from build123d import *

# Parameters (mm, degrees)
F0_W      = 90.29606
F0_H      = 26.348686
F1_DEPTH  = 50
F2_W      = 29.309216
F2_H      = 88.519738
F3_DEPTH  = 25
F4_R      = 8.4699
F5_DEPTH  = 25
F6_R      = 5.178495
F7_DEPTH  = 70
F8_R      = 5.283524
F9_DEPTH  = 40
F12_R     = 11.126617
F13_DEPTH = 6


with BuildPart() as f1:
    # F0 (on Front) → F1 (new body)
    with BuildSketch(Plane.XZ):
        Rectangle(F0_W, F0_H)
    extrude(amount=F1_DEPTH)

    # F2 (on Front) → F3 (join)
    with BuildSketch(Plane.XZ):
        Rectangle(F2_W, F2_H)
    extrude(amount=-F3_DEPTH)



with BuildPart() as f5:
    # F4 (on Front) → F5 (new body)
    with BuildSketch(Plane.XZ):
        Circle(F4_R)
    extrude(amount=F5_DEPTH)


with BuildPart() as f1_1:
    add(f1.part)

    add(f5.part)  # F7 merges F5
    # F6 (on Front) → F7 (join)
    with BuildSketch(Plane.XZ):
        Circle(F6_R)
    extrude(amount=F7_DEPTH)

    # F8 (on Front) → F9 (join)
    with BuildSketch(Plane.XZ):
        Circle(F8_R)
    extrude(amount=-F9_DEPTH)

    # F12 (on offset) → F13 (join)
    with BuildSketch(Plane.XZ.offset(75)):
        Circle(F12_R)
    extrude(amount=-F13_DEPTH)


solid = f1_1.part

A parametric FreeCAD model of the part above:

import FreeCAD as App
import Part
import Sketcher

V = App.Vector


def add_polygon(sketch, points):
    """Adds a closed chain of lines whose ends are joined by coincident constraints."""
    first, n = sketch.GeometryCount, len(points)
    for a, b in zip(points, points[1:] + points[:1]):
        sketch.addGeometry(Part.LineSegment(App.Vector(*a, 0), App.Vector(*b, 0)), False)
    for i in range(n):
        sketch.addConstraint(Sketcher.Constraint("Coincident", first + i, 2, first + (i + 1) % n, 1))

doc = App.newDocument("Part")
body = doc.addObject("PartDesign::Body", "Body")

# Sketch on XZ plane
sketch1 = body.newObject("Sketcher::SketchObject", "Sketch")
sketch1.AttachmentSupport = (doc.getObject("XZ_Plane"), [""])
sketch1.MapMode = "FlatFace"
add_polygon(sketch1, [(-45.14803, 13.174343), (-45.14803, -13.174343), (45.14803, -13.174343), (45.14803, 13.174343)])  # lines 0-3
sketch1.addConstraint(Sketcher.Constraint("Vertical", 0))
sketch1.addConstraint(Sketcher.Constraint("Horizontal", 1))
sketch1.addConstraint(Sketcher.Constraint("Vertical", 2))
sketch1.addConstraint(Sketcher.Constraint("Horizontal", 3))
sketch1.addConstraint(Sketcher.Constraint("Symmetric", 0, 2, 2, 2, -1, 1))
sketch1.addConstraint(Sketcher.Constraint("DistanceX", 1, 1, 1, 2, 90.29606))
sketch1.addConstraint(Sketcher.Constraint("DistanceY", 0, 2, 0, 1, 26.348686))
pad1 = body.newObject("PartDesign::Pad", "Pad")
pad1.Profile = sketch1
pad1.Length = 50

# Sketch on XZ plane
sketch2 = body.newObject("Sketcher::SketchObject", "Sketch001")
sketch2.AttachmentSupport = (doc.getObject("XZ_Plane"), [""])
sketch2.MapMode = "FlatFace"
add_polygon(sketch2, [(-14.654608, 44.259869), (-14.654608, -44.259869), (14.654608, -44.259869), (14.654608, 44.259869)])  # lines 0-3
sketch2.addConstraint(Sketcher.Constraint("Vertical", 0))
sketch2.addConstraint(Sketcher.Constraint("Horizontal", 1))
sketch2.addConstraint(Sketcher.Constraint("Vertical", 2))
sketch2.addConstraint(Sketcher.Constraint("Horizontal", 3))
sketch2.addConstraint(Sketcher.Constraint("Symmetric", 0, 2, 2, 2, -1, 1))
sketch2.addConstraint(Sketcher.Constraint("DistanceY", 0, 2, 0, 1, 88.519738))
sketch2.addConstraint(Sketcher.Constraint("DistanceX", 1, 1, 1, 2, 29.309216))
pad2 = body.newObject("PartDesign::Pad", "Pad001")
pad2.Profile = sketch2
pad2.Length = 25
pad2.Reversed = True
body2 = doc.addObject("PartDesign::Body", "Body001")

# Sketch on XZ plane
sketch3 = body2.newObject("Sketcher::SketchObject", "Sketch002")
sketch3.AttachmentSupport = (doc.getObject("XZ_Plane001"), [""])
sketch3.MapMode = "FlatFace"
sketch3.addGeometry(Part.Circle(V(0, 0, 0), V(0, 0, 1), 8.4699), False)
sketch3.addConstraint(Sketcher.Constraint("Coincident", 0, 3, -1, 1))
sketch3.addConstraint(Sketcher.Constraint("Diameter", 0, 16.9398))
pad3 = body2.newObject("PartDesign::Pad", "Pad002")
pad3.Profile = sketch3
pad3.Length = 25
doc.recompute()

boolean = body.newObject("PartDesign::Boolean", "Boolean")
boolean.Type = "Fuse"
boolean.addObjects([body2])

# Sketch on XZ plane
sketch4 = body.newObject("Sketcher::SketchObject", "Sketch003")
sketch4.AttachmentSupport = (doc.getObject("XZ_Plane"), [""])
sketch4.MapMode = "FlatFace"
sketch4.addGeometry(Part.Circle(V(0, 0, 0), V(0, 0, 1), 5.178495), False)
sketch4.addConstraint(Sketcher.Constraint("Coincident", 0, 3, -1, 1))
sketch4.addConstraint(Sketcher.Constraint("Diameter", 0, 10.35699))
pad4 = body.newObject("PartDesign::Pad", "Pad003")
pad4.Profile = sketch4
pad4.Length = 70

# Sketch on XZ plane
sketch5 = body.newObject("Sketcher::SketchObject", "Sketch004")
sketch5.AttachmentSupport = (doc.getObject("XZ_Plane"), [""])
sketch5.MapMode = "FlatFace"
sketch5.addGeometry(Part.Circle(V(0, 0, 0), V(0, 0, 1), 5.283524), False)
sketch5.addConstraint(Sketcher.Constraint("Coincident", 0, 3, -1, 1))
sketch5.addConstraint(Sketcher.Constraint("Diameter", 0, 10.567048))
pad5 = body.newObject("PartDesign::Pad", "Pad004")
pad5.Profile = sketch5
pad5.Length = 40
pad5.Reversed = True

# Sketch on XZ plane
sketch6 = body.newObject("Sketcher::SketchObject", "Sketch005")
sketch6.AttachmentSupport = (doc.getObject("XZ_Plane"), [""])
sketch6.MapMode = "FlatFace"
sketch6.AttachmentOffset = App.Placement(V(0, 0, 75), App.Rotation())
sketch6.addGeometry(Part.Circle(V(0, 0, 0), V(0, 0, 1), 11.126617), False)
sketch6.addConstraint(Sketcher.Constraint("Coincident", 0, 3, -1, 1))
sketch6.addConstraint(Sketcher.Constraint("Diameter", 0, 22.253234))
pad6 = body.newObject("PartDesign::Pad", "Pad005")
pad6.Profile = sketch6
pad6.Length = 6
pad6.Reversed = True

doc.recompute()
